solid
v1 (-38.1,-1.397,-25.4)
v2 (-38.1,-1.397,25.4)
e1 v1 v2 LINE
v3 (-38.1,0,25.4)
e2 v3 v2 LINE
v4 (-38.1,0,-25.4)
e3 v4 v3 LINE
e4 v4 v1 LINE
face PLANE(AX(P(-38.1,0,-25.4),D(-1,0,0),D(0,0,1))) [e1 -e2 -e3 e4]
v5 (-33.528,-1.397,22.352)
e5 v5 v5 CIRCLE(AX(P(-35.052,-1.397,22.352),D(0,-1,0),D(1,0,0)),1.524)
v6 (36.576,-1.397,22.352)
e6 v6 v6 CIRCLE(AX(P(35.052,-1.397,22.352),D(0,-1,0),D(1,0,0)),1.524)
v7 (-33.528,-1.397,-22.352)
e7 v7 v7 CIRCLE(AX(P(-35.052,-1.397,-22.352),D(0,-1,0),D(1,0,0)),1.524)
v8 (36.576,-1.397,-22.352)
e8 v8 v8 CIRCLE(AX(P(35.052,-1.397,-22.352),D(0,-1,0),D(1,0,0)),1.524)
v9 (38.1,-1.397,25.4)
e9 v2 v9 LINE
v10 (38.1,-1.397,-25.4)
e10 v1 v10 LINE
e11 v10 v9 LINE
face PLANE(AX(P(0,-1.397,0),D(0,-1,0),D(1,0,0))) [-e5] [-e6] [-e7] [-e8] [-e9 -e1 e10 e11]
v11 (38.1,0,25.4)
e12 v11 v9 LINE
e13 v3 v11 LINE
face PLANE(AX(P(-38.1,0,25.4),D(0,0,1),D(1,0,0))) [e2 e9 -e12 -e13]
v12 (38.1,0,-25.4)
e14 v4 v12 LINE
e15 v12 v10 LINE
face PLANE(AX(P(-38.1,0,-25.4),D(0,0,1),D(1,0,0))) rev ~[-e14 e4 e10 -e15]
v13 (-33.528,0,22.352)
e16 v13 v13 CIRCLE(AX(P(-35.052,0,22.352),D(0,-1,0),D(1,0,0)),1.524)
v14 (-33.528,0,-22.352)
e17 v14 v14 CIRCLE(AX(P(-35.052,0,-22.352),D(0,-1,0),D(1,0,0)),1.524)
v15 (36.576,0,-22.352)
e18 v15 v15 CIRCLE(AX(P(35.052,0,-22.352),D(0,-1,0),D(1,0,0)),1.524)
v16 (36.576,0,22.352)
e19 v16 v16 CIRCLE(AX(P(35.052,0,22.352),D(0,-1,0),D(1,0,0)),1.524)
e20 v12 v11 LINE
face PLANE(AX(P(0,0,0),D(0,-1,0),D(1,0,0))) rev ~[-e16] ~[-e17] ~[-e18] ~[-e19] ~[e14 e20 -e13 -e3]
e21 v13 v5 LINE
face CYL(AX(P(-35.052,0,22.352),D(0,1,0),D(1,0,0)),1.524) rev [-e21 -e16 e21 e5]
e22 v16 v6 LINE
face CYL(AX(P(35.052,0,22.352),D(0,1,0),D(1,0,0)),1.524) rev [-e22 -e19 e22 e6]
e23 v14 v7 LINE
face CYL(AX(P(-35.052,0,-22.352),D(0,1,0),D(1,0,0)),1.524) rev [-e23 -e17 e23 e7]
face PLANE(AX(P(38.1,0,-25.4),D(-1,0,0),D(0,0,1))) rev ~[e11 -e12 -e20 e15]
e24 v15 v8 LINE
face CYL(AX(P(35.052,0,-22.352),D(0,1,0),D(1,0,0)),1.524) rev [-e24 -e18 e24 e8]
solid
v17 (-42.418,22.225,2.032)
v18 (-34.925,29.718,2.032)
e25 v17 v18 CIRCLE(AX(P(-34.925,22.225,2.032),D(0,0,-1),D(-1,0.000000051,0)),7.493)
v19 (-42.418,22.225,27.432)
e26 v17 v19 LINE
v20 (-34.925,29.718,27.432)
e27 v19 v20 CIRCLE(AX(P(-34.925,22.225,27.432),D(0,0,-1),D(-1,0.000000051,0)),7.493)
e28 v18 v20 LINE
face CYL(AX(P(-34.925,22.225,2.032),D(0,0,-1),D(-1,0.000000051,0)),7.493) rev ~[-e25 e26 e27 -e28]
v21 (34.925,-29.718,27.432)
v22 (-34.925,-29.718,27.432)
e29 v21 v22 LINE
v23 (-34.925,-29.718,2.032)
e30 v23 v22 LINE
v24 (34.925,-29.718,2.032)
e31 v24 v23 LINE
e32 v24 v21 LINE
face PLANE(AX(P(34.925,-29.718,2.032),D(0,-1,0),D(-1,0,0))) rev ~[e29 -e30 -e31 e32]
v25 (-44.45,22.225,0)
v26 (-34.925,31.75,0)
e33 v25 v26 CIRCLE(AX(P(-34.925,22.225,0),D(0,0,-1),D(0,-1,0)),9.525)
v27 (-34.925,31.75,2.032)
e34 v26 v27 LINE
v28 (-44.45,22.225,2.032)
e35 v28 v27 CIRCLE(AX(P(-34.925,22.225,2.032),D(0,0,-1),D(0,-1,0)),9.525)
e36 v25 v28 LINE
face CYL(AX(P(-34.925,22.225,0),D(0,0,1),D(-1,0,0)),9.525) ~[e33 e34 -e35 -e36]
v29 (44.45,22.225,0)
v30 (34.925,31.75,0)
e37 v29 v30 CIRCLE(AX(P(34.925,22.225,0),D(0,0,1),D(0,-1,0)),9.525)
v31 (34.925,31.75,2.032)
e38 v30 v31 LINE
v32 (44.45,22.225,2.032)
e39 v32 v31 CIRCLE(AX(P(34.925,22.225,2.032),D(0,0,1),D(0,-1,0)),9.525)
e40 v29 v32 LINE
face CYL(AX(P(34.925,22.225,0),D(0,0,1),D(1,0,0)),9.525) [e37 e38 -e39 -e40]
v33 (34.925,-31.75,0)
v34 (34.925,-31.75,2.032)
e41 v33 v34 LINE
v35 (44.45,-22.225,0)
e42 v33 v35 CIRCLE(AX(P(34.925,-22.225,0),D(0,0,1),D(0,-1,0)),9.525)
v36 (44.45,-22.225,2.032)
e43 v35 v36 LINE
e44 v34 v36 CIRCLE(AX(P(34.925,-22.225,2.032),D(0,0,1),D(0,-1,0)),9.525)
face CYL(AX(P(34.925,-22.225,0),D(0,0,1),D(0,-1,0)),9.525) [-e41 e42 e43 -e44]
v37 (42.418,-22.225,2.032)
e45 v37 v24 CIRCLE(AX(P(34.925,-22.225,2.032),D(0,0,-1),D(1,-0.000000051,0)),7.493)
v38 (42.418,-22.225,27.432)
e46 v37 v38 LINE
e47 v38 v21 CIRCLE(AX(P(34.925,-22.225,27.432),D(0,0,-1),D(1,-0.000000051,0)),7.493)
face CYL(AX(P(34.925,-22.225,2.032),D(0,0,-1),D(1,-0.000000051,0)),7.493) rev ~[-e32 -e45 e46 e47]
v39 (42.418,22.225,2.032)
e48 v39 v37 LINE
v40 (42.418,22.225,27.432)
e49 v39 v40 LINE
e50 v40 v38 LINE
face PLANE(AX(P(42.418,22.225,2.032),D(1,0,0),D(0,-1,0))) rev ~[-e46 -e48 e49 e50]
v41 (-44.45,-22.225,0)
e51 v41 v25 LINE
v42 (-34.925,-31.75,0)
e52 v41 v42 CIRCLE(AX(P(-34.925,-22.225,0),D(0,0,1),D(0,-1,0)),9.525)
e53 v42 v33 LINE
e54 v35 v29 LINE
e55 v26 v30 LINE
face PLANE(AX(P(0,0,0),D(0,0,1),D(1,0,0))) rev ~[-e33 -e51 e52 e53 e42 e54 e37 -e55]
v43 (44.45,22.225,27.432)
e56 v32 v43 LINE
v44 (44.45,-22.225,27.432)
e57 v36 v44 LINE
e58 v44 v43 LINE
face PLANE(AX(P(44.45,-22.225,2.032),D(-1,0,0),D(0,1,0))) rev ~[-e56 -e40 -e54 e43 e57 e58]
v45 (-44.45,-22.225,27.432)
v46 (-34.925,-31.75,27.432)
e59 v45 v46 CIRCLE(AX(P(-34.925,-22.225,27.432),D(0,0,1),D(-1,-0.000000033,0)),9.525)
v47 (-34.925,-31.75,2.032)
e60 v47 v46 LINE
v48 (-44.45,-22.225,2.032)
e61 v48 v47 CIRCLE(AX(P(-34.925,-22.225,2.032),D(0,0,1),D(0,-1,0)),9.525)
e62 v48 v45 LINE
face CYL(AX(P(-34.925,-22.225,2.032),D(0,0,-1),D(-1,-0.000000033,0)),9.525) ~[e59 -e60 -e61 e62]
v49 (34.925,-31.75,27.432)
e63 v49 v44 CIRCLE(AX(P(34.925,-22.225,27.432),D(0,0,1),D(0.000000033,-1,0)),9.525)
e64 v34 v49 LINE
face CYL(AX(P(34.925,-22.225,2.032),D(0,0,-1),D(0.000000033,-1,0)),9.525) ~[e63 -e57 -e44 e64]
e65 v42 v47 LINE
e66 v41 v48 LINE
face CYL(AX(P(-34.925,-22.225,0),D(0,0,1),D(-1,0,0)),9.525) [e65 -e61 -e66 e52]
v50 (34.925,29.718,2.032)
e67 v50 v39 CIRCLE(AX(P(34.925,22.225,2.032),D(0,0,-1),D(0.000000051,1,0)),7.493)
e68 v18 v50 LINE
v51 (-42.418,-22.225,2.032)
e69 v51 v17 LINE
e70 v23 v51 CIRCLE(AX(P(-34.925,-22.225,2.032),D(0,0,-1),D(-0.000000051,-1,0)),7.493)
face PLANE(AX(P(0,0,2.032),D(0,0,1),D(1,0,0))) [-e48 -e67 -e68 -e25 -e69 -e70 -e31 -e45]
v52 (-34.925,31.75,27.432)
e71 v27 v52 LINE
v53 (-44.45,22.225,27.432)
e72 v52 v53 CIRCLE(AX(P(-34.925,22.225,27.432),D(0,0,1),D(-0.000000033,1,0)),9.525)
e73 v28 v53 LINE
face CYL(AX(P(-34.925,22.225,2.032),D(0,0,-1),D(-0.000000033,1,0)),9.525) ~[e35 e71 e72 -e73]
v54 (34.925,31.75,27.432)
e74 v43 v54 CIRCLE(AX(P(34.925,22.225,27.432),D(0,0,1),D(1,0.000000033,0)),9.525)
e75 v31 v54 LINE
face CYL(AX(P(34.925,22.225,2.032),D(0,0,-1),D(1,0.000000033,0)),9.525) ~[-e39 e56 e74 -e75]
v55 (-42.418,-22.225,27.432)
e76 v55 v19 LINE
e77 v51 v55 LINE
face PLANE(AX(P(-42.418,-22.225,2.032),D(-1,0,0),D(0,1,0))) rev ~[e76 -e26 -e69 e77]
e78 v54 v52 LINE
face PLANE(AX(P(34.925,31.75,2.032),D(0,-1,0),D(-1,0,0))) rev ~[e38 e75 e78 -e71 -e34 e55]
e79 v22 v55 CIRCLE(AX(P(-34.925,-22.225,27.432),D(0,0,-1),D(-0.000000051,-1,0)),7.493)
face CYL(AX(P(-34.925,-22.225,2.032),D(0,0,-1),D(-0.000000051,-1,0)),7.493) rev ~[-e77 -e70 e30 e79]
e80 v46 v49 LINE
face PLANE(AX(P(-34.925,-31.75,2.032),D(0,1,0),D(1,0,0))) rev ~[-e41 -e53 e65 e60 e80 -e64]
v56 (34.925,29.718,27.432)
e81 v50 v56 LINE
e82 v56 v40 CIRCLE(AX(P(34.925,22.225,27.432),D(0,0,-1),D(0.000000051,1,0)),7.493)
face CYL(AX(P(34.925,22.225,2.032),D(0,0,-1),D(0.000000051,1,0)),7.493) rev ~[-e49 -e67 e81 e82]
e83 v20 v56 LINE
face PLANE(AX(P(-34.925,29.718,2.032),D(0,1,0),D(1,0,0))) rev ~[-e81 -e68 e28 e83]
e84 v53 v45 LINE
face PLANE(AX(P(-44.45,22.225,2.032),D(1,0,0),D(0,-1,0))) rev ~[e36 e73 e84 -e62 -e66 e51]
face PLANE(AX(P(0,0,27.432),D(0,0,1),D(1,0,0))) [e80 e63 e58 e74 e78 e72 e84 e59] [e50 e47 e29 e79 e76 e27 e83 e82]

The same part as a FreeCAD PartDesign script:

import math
import FreeCAD as App
import Part
import Sketcher
Q = App.Units.Quantity


def edges_at(feature, points):
    """Names of the edges that pass closest to the given points."""
    edges = feature.Shape.Edges
    near = lambda p: min(range(len(edges)), key=lambda i: edges[i].distToShape(Part.Vertex(*p))[0])
    return sorted({f"Edge{near(p) + 1}" for p in points})

doc = App.newDocument("Part")
body = doc.addObject("PartDesign::Body", "Body")

# Sketch on XZ plane
sketch1 = doc.addObject("Sketcher::SketchObject", "Sketch")
body.addObject(sketch1)
sketch1.AttachmentSupport = (doc.XZ_Plane, [""])
sketch1.MapMode = "FlatFace"
sketch1.addGeometry(Part.LineSegment(App.Vector(-38.1, 25.4, 0), App.Vector(-38.1, -25.4, 0)), False)
sketch1.addGeometry(Part.LineSegment(App.Vector(-38.1, -25.4, 0), App.Vector(38.1, -25.4, 0)), False)
sketch1.addGeometry(Part.LineSegment(App.Vector(38.1, -25.4, 0), App.Vector(38.1, 25.4, 0)), False)
sketch1.addGeometry(Part.LineSegment(App.Vector(38.1, 25.4, 0), App.Vector(-38.1, 25.4, 0)), False)
sketch1.addGeometry(Part.Circle(App.Vector(-35.052, -22.352, 0), App.Vector(0, 0, 1), 1.524), False)
sketch1.addGeometry(Part.Circle(App.Vector(35.052, -22.352, 0), App.Vector(0, 0, 1), 1.524), False)
sketch1.addGeometry(Part.Circle(App.Vector(-35.052, 22.352, 0), App.Vector(0, 0, 1), 1.524), False)
sketch1.addGeometry(Part.Circle(App.Vector(35.052, 22.352, 0), App.Vector(0, 0, 1), 1.524), False)
sketch1.addConstraint(Sketcher.Constraint("Coincident", 0, 2, 1, 1))
sketch1.addConstraint(Sketcher.Constraint("Coincident", 1, 2, 2, 1))
sketch1.addConstraint(Sketcher.Constraint("Coincident", 2, 2, 3, 1))
sketch1.addConstraint(Sketcher.Constraint("Coincident", 3, 2, 0, 1))
sketch1.addConstraint(Sketcher.Constraint("Vertical", 0))
sketch1.addConstraint(Sketcher.Constraint("Horizontal", 1))
sketch1.addConstraint(Sketcher.Constraint("Vertical", 2))
sketch1.addConstraint(Sketcher.Constraint("Horizontal", 3))
sketch1.addConstraint(Sketcher.Constraint("Equal", 4, 5))
sketch1.addConstraint(Sketcher.Constraint("Equal", 5, 6))
sketch1.addConstraint(Sketcher.Constraint("Equal", 6, 7))
sketch1.addConstraint(Sketcher.Constraint("Symmetric", 5, 3, 6, 3, -1, 1))
sketch1.addConstraint(Sketcher.Constraint("Symmetric", 4, 3, 7, 3, -1, 1))
sketch1.addConstraint(Sketcher.Constraint("Symmetric", 0, 2, 2, 2, -1, 1))
sketch1.addConstraint(Sketcher.Constraint("Symmetric", 4, 3, 5, 3, -2))
sketch1.addConstraint(Sketcher.Constraint("Diameter", 4, Q("0.12 in")))
sketch1.addConstraint(Sketcher.Constraint("DistanceX", 1, 1, 1, 2, Q("3 in")))
sketch1.addConstraint(Sketcher.Constraint("DistanceY", 0, 2, 0, 1, Q("2 in")))
sketch1.addConstraint(Sketcher.Constraint("DistanceX", 4, 3, -1, 1, Q("1.38 in")))
sketch1.addConstraint(Sketcher.Constraint("DistanceY", 4, 3, -1, 1, Q("0.88 in")))
pad1 = doc.addObject("PartDesign::Pad", "Pad")
body.addObject(pad1)
pad1.Profile = sketch1
pad1.Length = Q("0.055 in")
body2 = doc.addObject("PartDesign::Body", "Body001")

# Sketch on XY plane
sketch2 = doc.addObject("Sketcher::SketchObject", "Sketch001")
body2.addObject(sketch2)
sketch2.AttachmentSupport = (doc.getObject("XY_Plane001"), [""])
sketch2.MapMode = "FlatFace"
sketch2.addGeometry(Part.LineSegment(App.Vector(-44.45, 31.75, 0), App.Vector(-44.45, -31.75, 0)), False)
sketch2.addGeometry(Part.LineSegment(App.Vector(-44.45, -31.75, 0), App.Vector(44.45, -31.75, 0)), False)
sketch2.addGeometry(Part.LineSegment(App.Vector(44.45, -31.75, 0), App.Vector(44.45, 31.75, 0)), False)
sketch2.addGeometry(Part.LineSegment(App.Vector(44.45, 31.75, 0), App.Vector(-44.45, 31.75, 0)), False)
sketch2.addConstraint(Sketcher.Constraint("Coincident", 0, 2, 1, 1))
sketch2.addConstraint(Sketcher.Constraint("Coincident", 1, 2, 2, 1))
sketch2.addConstraint(Sketcher.Constraint("Coincident", 2, 2, 3, 1))
sketch2.addConstraint(Sketcher.Constraint("Coincident", 3, 2, 0, 1))
sketch2.addConstraint(Sketcher.Constraint("Vertical", 0))
sketch2.addConstraint(Sketcher.Constraint("Horizontal", 1))
sketch2.addConstraint(Sketcher.Constraint("Vertical", 2))
sketch2.addConstraint(Sketcher.Constraint("Horizontal", 3))
sketch2.addConstraint(Sketcher.Constraint("Symmetric", 0, 2, 2, 2, -1, 1))
sketch2.addConstraint(Sketcher.Constraint("DistanceX", 1, 1, 1, 2, Q("3.5 in")))
sketch2.addConstraint(Sketcher.Constraint("DistanceY", 0, 2, 0, 1, Q("2.5 in")))
pad2 = doc.addObject("PartDesign::Pad", "Pad001")
body2.addObject(pad2)
pad2.Profile = sketch2
pad2.Length = Q("0.08 in")
doc.recompute()

fillet = doc.addObject("PartDesign::Fillet", "Fillet")
body2.addObject(fillet)
fillet.Base = (pad2, edges_at(pad2, [
    (-44.45, -31.75, 1.016),
    (44.45, -31.75, 1.016),
    (-44.45, 31.75, 1.016),
    (44.45, 31.75, 1.016),
]))
fillet.Radius = Q("0.375 in")

# Sketch on XY plane
sketch3 = doc.addObject("Sketcher::SketchObject", "Sketch002")
body2.addObject(sketch3)
sketch3.AttachmentSupport = (doc.getObject("XY_Plane001"), [""])
sketch3.MapMode = "FlatFace"
sketch3.AttachmentOffset = App.Placement(App.Vector(0, 0, 0.08 * 25.4), App.Rotation())
sketch3.addGeometry(Part.LineSegment(App.Vector(34.925, 31.75, 0), App.Vector(-34.925, 31.75, 0)), False)
sketch3.addGeometry(Part.ArcOfCircle(Part.Circle(App.Vector(-34.925, 22.225, 0), App.Vector(0, 0, 1), 9.525), math.radians(90.000002), math.radians(179.999998)), False)
sketch3.addGeometry(Part.LineSegment(App.Vector(-44.45, 22.225, 0), App.Vector(-44.45, -22.225, 0)), False)
sketch3.addGeometry(Part.ArcOfCircle(Part.Circle(App.Vector(-34.925, -22.225, 0), App.Vector(0, 0, 1), 9.525), math.radians(-179.999998), math.radians(-90.000002)), False)
sketch3.addGeometry(Part.LineSegment(App.Vector(-34.925, -31.75, 0), App.Vector(34.925, -31.75, 0)), False)
sketch3.addGeometry(Part.ArcOfCircle(Part.Circle(App.Vector(34.925, -22.225, 0), App.Vector(0, 0, 1), 9.525), math.radians(-89.999998), math.radians(-0.000002)), False)
sketch3.addGeometry(Part.LineSegment(App.Vector(44.45, -22.225, 0), App.Vector(44.45, 22.225, 0)), False)
sketch3.addGeometry(Part.ArcOfCircle(Part.Circle(App.Vector(34.925, 22.225, 0), App.Vector(0, 0, 1), 9.525), math.radians(0.000002), math.radians(89.999998)), False)
sketch3.addGeometry(Part.LineSegment(App.Vector(-42.418, -22.225, 0), App.Vector(-42.418, 22.225, 0)), False)
sketch3.addGeometry(Part.ArcOfCircle(Part.Circle(App.Vector(-34.925, 22.225, 0), App.Vector(0, 0, 1), 7.493), math.radians(90.000003), math.radians(179.999997)), False)
sketch3.addGeometry(Part.LineSegment(App.Vector(-34.925, 29.718, 0), App.Vector(34.925, 29.718, 0)), False)
sketch3.addGeometry(Part.ArcOfCircle(Part.Circle(App.Vector(34.925, 22.225, 0), App.Vector(0, 0, 1), 7.493), math.radians(0.000003), math.radians(89.999997)), False)
sketch3.addGeometry(Part.LineSegment(App.Vector(42.418, 22.225, 0), App.Vector(42.418, -22.225, 0)), False)
sketch3.addGeometry(Part.ArcOfCircle(Part.Circle(App.Vector(34.925, -22.225, 0), App.Vector(0, 0, 1), 7.493), math.radians(-89.999997), math.radians(-0.000003)), False)
sketch3.addGeometry(Part.LineSegment(App.Vector(34.925, -29.718, 0), App.Vector(-34.925, -29.718, 0)), False)
sketch3.addGeometry(Part.ArcOfCircle(Part.Circle(App.Vector(-34.925, -22.225, 0), App.Vector(0, 0, 1), 7.493), math.radians(-179.999997), math.radians(-90.000003)), False)
sketch3.addConstraint(Sketcher.Constraint("Tangent", 0, 2, 1, 1))
sketch3.addConstraint(Sketcher.Constraint("Tangent", 1, 2, 2, 1))
sketch3.addConstraint(Sketcher.Constraint("Tangent", 2, 2, 3, 1))
sketch3.addConstraint(Sketcher.Constraint("Tangent", 3, 2, 4, 1))
sketch3.addConstraint(Sketcher.Constraint("Tangent", 4, 2, 5, 1))
sketch3.addConstraint(Sketcher.Constraint("Tangent", 5, 2, 6, 1))
sketch3.addConstraint(Sketcher.Constraint("Tangent", 6, 2, 7, 1))
sketch3.addConstraint(Sketcher.Constraint("Tangent", 7, 2, 0, 1))
sketch3.addConstraint(Sketcher.Constraint("Tangent", 8, 2, 9, 2))
sketch3.addConstraint(Sketcher.Constraint("Tangent", 9, 1, 10, 1))
sketch3.addConstraint(Sketcher.Constraint("Tangent", 10, 2, 11, 2))
sketch3.addConstraint(Sketcher.Constraint("Tangent", 11, 1, 12, 1))
sketch3.addConstraint(Sketcher.Constraint("Tangent", 12, 2, 13, 2))
sketch3.addConstraint(Sketcher.Constraint("Tangent", 13, 1, 14, 1))
sketch3.addConstraint(Sketcher.Constraint("Tangent", 14, 2, 15, 2))
sketch3.addConstraint(Sketcher.Constraint("Tangent", 15, 1, 8, 1))
sketch3.addConstraint(Sketcher.Constraint("Horizontal", 0))
sketch3.addConstraint(Sketcher.Constraint("Vertical", 2))
sketch3.addConstraint(Sketcher.Constraint("Horizontal", 4))
sketch3.addConstraint(Sketcher.Constraint("Vertical", 6))
sketch3.addConstraint(Sketcher.Constraint("Vertical", 8))
sketch3.addConstraint(Sketcher.Constraint("Horizontal", 10))
sketch3.addConstraint(Sketcher.Constraint("Vertical", 12))
sketch3.addConstraint(Sketcher.Constraint("Horizontal", 14))
sketch3.addConstraint(Sketcher.Constraint("Coincident", 9, 3, 1, 3))
sketch3.addConstraint(Sketcher.Constraint("Coincident", 11, 3, 7, 3))
sketch3.addConstraint(Sketcher.Constraint("Coincident", 13, 3, 5, 3))
sketch3.addConstraint(Sketcher.Constraint("Equal", 1, 3))
sketch3.addConstraint(Sketcher.Constraint("Equal", 3, 5))
sketch3.addConstraint(Sketcher.Constraint("Equal", 5, 7))
sketch3.addConstraint(Sketcher.Constraint("Equal", 13, 15))
sketch3.addConstraint(Sketcher.Constraint("Symmetric", 1, 3, 5, 3, -1, 1))
sketch3.addConstraint(Sketcher.Constraint("Radius", 1, Q("0.375 in")))
sketch3.addConstraint(Sketcher.Constraint("Radius", 9, Q("0.295 in")))
sketch3.addConstraint(Sketcher.Constraint("DistanceX", 0, 2, 0, 1, Q("2.75 in")))
sketch3.addConstraint(Sketcher.Constraint("DistanceY", 2, 2, 2, 1, Q("1.75 in")))
pad3 = doc.addObject("PartDesign::Pad", "Pad002")
body2.addObject(pad3)
pad3.Profile = sketch3
pad3.Length = Q("1 in")

doc.recompute()
